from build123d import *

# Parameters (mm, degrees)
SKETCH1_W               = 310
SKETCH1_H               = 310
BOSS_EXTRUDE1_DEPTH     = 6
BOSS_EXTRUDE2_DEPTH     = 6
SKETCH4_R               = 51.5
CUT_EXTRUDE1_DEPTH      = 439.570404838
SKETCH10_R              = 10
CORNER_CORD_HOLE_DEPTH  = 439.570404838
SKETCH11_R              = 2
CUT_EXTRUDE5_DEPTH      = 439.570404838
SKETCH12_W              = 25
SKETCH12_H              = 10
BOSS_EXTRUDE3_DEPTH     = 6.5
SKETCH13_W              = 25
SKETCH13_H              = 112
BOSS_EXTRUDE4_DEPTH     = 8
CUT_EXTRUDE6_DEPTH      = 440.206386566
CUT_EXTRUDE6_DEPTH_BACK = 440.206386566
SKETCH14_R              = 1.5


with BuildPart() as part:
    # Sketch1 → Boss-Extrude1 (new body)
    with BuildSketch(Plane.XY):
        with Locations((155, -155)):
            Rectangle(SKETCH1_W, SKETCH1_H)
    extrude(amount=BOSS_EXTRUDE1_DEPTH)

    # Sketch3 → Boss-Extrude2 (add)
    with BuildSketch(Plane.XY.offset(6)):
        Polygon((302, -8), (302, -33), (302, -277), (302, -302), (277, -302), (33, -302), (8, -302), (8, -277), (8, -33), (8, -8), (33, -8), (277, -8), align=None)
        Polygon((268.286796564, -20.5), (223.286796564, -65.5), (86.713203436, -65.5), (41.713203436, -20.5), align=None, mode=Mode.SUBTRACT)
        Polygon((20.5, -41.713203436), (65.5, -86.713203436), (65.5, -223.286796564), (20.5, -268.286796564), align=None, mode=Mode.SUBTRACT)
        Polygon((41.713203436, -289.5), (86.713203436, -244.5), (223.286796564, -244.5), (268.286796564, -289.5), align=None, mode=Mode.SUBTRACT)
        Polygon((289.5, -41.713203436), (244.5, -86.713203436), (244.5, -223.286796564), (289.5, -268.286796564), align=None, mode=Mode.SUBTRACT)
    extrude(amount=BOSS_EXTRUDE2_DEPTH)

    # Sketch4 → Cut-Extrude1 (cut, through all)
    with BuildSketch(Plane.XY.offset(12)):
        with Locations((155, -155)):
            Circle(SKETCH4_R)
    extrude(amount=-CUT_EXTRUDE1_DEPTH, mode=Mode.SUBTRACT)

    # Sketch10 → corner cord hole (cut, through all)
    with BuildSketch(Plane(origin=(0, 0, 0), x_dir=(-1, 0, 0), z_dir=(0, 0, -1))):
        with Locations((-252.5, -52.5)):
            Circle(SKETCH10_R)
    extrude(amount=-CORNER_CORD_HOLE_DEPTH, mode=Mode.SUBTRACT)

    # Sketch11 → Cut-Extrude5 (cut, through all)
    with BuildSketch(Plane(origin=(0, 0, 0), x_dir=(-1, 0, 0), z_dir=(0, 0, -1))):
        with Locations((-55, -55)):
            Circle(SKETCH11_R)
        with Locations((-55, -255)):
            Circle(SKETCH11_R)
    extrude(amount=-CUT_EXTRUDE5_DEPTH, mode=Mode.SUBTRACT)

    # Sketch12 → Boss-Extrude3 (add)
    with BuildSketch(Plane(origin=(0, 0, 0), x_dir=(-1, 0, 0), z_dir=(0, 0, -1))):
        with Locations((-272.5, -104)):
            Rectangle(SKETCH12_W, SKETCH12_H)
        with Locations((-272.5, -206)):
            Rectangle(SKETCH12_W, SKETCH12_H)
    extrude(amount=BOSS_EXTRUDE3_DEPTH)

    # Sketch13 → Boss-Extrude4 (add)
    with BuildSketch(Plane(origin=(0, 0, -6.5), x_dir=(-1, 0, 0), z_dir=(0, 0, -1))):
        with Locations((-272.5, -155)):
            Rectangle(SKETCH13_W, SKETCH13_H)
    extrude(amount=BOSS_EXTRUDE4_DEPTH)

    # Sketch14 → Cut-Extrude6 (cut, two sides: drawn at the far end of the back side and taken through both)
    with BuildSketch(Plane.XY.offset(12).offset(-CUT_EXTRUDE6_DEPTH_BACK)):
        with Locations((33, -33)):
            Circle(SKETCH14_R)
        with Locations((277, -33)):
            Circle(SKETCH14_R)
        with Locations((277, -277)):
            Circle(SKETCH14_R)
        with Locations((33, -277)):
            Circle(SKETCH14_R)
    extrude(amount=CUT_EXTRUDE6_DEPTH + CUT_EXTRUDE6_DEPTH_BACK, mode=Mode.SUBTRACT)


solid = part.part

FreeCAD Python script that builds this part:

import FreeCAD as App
import Part
import Sketcher


def add_polygon(sketch, points):
    """Adds a closed chain of lines whose ends are joined by coincident constraints."""
    first, n = sketch.GeometryCount, len(points)
    for a, b in zip(points, points[1:] + points[:1]):
        sketch.addGeometry(Part.LineSegment(App.Vector(*a, 0), App.Vector(*b, 0)), False)
    for i in range(n):
        sketch.addConstraint(Sketcher.Constraint("Coincident", first + i, 2, first + (i + 1) % n, 1))

doc = App.newDocument("Part")
body = doc.addObject("PartDesign::Body", "Body")

# Sketch on XY plane
sketch1 = doc.addObject("Sketcher::SketchObject", "Sketch")
body.addObject(sketch1)
sketch1.AttachmentSupport = (doc.XY_Plane, [""])
sketch1.MapMode = "FlatFace"
add_polygon(sketch1, [(0, 0), (0, -310), (310, -310), (310, 0)])  # lines 0-3
sketch1.addConstraint(Sketcher.Constraint("Vertical", 0))
sketch1.addConstraint(Sketcher.Constraint("Horizontal", 1))
sketch1.addConstraint(Sketcher.Constraint("Vertical", 2))
sketch1.addConstraint(Sketcher.Constraint("Horizontal", 3))
sketch1.addConstraint(Sketcher.Constraint("Coincident", 3, 2, -1, 1))
sketch1.addConstraint(Sketcher.Constraint("Equal", 3, 0))
sketch1.addConstraint(Sketcher.Constraint("DistanceX", 1, 1, 1, 2, 310.0))
pad1 = doc.addObject("PartDesign::Pad", "Pad")
body.addObject(pad1)
pad1.Profile = sketch1
pad1.Length = 6

# Sketch on XY plane
sketch2 = doc.addObject("Sketcher::SketchObject", "Sketch001")
body.addObject(sketch2)
sketch2.AttachmentSupport = (doc.XY_Plane, [""])
sketch2.MapMode = "FlatFace"
sketch2.AttachmentOffset = App.Placement(App.Vector(0, 0, 6), App.Rotation())
add_polygon(sketch2, [(302, -302), (302, -8), (8, -8), (8, -302)])  # lines 0-3
add_polygon(sketch2, [(41.713203, -289.5), (86.713203, -244.5), (223.286797, -244.5), (268.286797, -289.5)])  # lines 4-7
add_polygon(sketch2, [(289.5, -41.713203), (289.5, -268.286797), (244.5, -223.286797), (244.5, -86.713203)])  # lines 8-11
add_polygon(sketch2, [(20.5, -41.713203), (65.5, -86.713203), (65.5, -223.286797), (20.5, -268.286797)])  # lines 12-15
add_polygon(sketch2, [(268.286797, -20.5), (223.286797, -65.5), (86.713203, -65.5), (41.713203, -20.5)])  # lines 16-19
sketch2.addConstraint(Sketcher.Constraint("Vertical", 0))
sketch2.addConstraint(Sketcher.Constraint("Horizontal", 1))
sketch2.addConstraint(Sketcher.Constraint("Vertical", 2))
sketch2.addConstraint(Sketcher.Constraint("Horizontal", 3))
sketch2.addConstraint(Sketcher.Constraint("Horizontal", 5))
sketch2.addConstraint(Sketcher.Constraint("Horizontal", 7))
sketch2.addConstraint(Sketcher.Constraint("Vertical", 8))
sketch2.addConstraint(Sketcher.Constraint("Vertical", 10))
sketch2.addConstraint(Sketcher.Constraint("Vertical", 13))
sketch2.addConstraint(Sketcher.Constraint("Vertical", 15))
sketch2.addConstraint(Sketcher.Constraint("Horizontal", 17))
sketch2.addConstraint(Sketcher.Constraint("Horizontal", 19))
sketch2.addConstraint(Sketcher.Constraint("Perpendicular", 4, 6))
sketch2.addConstraint(Sketcher.Constraint("Parallel", 6, 9))
sketch2.addConstraint(Sketcher.Constraint("Perpendicular", 9, 11))
sketch2.addConstraint(Sketcher.Constraint("Perpendicular", 11, 12))
sketch2.addConstraint(Sketcher.Constraint("Perpendicular", 12, 14))
sketch2.addConstraint(Sketcher.Constraint("Parallel", 14, 16))
sketch2.addConstraint(Sketcher.Constraint("Perpendicular", 16, 18))
sketch2.addConstraint(Sketcher.Constraint("Horizontal", 10, 2, 12, 2))
sketch2.addConstraint(Sketcher.Constraint("Horizontal", 9, 2, 13, 2))
sketch2.addConstraint(Sketcher.Constraint("Horizontal", 8, 2, 14, 2))
sketch2.addConstraint(Sketcher.Constraint("Horizontal", 11, 2, 15, 2))
sketch2.addConstraint(Sketcher.Constraint("Vertical", 5, 2, 16, 2))
sketch2.addConstraint(Sketcher.Constraint("Vertical", 4, 2, 17, 2))
sketch2.addConstraint(Sketcher.Constraint("Vertical", 7, 2, 18, 2))
sketch2.addConstraint(Sketcher.Constraint("Equal", 3, 0))
sketch2.addConstraint(Sketcher.Constraint("Equal", 19, 8))
sketch2.addConstraint(Sketcher.Constraint("Equal", 17, 10))
sketch2.addConstraint(Sketcher.Constraint("DistanceX", 1, 2, 1, 1, 294.0))
sketch2.addConstraint(Sketcher.Constraint("DistanceX", -1, 1, 0, 2, 302.0))
sketch2.addConstraint(Sketcher.Constraint("DistanceY", 0, 2, -1, 1, 8.0))
sketch2.addConstraint(Sketcher.Constraint("DistanceX", 5, 2, 6, 2, 45.0))
sketch2.addConstraint(Sketcher.Constraint("DistanceX", 12, 2, 10, 2, 179.0))
sketch2.addConstraint(Sketcher.Constraint("DistanceY", 4, 2, -1, 1, 244.5))
sketch2.addConstraint(Sketcher.Constraint("DistanceX", -1, 1, 8, 2, 289.5))
sketch2.addConstraint(Sketcher.Constraint("DistanceY", 16, 2, -1, 1, 65.5))
sketch2.addConstraint(Sketcher.Constraint("DistanceX", 5, 1, 5, 2, 136.573593))
sketch2.addConstraint(Sketcher.Constraint("DistanceX", -1, 1, 4, 2, 86.713203))
sketch2.addConstraint(Sketcher.Constraint("DistanceY", 8, 2, -1, 1, 268.286797))
pad2 = doc.addObject("PartDesign::Pad", "Pad001")
body.addObject(pad2)
pad2.Profile = sketch2
pad2.Length = 6

# Sketch on XY plane
sketch3 = doc.addObject("Sketcher::SketchObject", "Sketch002")
body.addObject(sketch3)
sketch3.AttachmentSupport = (doc.XY_Plane, [""])
sketch3.MapMode = "FlatFace"
sketch3.AttachmentOffset = App.Placement(App.Vector(0, 0, 12), App.Rotation())
sketch3.addGeometry(Part.Circle(App.Vector(155, -155, 0), App.Vector(0, 0, 1), 51.5), False)
sketch3.addConstraint(Sketcher.Constraint("Diameter", 0, 103.0))
sketch3.addConstraint(Sketcher.Constraint("DistanceX", -1, 1, 0, 3, 155.0))
sketch3.addConstraint(Sketcher.Constraint("DistanceY", 0, 3, -1, 1, 155.0))
pocket1 = doc.addObject("PartDesign::Pocket", "Pocket")
body.addObject(pocket1)
pocket1.Profile = sketch3
pocket1.Type = "ThroughAll"

# Sketch on XY plane
sketch4 = doc.addObject("Sketcher::SketchObject", "Sketch003")
body.addObject(sketch4)
sketch4.AttachmentSupport = (doc.XY_Plane, [""])
sketch4.MapMode = "FlatFace"
sketch4.addGeometry(Part.Circle(App.Vector(252.5, -52.5, 0), App.Vector(0, 0, 1), 10), False)
sketch4.addConstraint(Sketcher.Constraint("Diameter", 0, 20.0))
sketch4.addConstraint(Sketcher.Constraint("DistanceX", -1, 1, 0, 3, 252.5))
sketch4.addConstraint(Sketcher.Constraint("DistanceY", 0, 3, -1, 1, 52.5))
pocket2 = doc.addObject("PartDesign::Pocket", "Pocket001")
body.addObject(pocket2)
pocket2.Profile = sketch4
pocket2.Type = "ThroughAll"
pocket2.Reversed = True

# Sketch on XY plane
sketch5 = doc.addObject("Sketcher::SketchObject", "Sketch004")
body.addObject(sketch5)
sketch5.AttachmentSupport = (doc.XY_Plane, [""])
sketch5.MapMode = "FlatFace"
sketch5.addGeometry(Part.Circle(App.Vector(55, -55, 0), App.Vector(0, 0, 1), 2), False)
sketch5.addGeometry(Part.Circle(App.Vector(55, -255, 0), App.Vector(0, 0, 1), 2), False)
sketch5.addConstraint(Sketcher.Constraint("Equal", 0, 1))
sketch5.addConstraint(Sketcher.Constraint("Vertical", 0, 3, 1, 3))
sketch5.addConstraint(Sketcher.Constraint("Diameter", 0, 4.0))
sketch5.addConstraint(Sketcher.Constraint("DistanceX", -1, 1, 0, 3, 55.0))
sketch5.addConstraint(Sketcher.Constraint("DistanceY", 0, 3, -1, 1, 55.0))
sketch5.addConstraint(Sketcher.Constraint("DistanceY", 1, 3, -1, 1, 255.0))
pocket3 = doc.addObject("PartDesign::Pocket", "Pocket002")
body.addObject(pocket3)
pocket3.Profile = sketch5
pocket3.Type = "ThroughAll"
pocket3.Reversed = True

# Sketch on XY plane
sketch6 = doc.addObject("Sketcher::SketchObject", "Sketch005")
body.addObject(sketch6)
sketch6.AttachmentSupport = (doc.XY_Plane, [""])
sketch6.MapMode = "FlatFace"
add_polygon(sketch6, [(285, -99), (285, -109), (260, -109), (260, -99)])  # lines 0-3
add_polygon(sketch6, [(285, -201), (285, -211), (260, -211), (260, -201)])  # lines 4-7
sketch6.addConstraint(Sketcher.Constraint("Vertical", 0))
sketch6.addConstraint(Sketcher.Constraint("Horizontal", 1))
sketch6.addConstraint(Sketcher.Constraint("Vertical", 2))
sketch6.addConstraint(Sketcher.Constraint("Horizontal", 3))
sketch6.addConstraint(Sketcher.Constraint("Vertical", 4))
sketch6.addConstraint(Sketcher.Constraint("Horizontal", 5))
sketch6.addConstraint(Sketcher.Constraint("Vertical", 6))
sketch6.addConstraint(Sketcher.Constraint("Horizontal", 7))
sketch6.addConstraint(Sketcher.Constraint("Vertical", 3, 2, 4, 2))
sketch6.addConstraint(Sketcher.Constraint("Vertical", 2, 2, 5, 2))
sketch6.addConstraint(Sketcher.Constraint("Equal", 2, 4))
sketch6.addConstraint(Sketcher.Constraint("DistanceX", 1, 2, 1, 1, 25.0))
sketch6.addConstraint(Sketcher.Constraint("DistanceY", 0, 2, 0, 1, 10.0))
sketch6.addConstraint(Sketcher.Constraint("DistanceX", -1, 1, 0, 2, 285.0))
sketch6.addConstraint(Sketcher.Constraint("DistanceY", 0, 2, -1, 1, 109.0))
sketch6.addConstraint(Sketcher.Constraint("DistanceY", 4, 2, -1, 1, 211.0))
pad3 = doc.addObject("PartDesign::Pad", "Pad002")
body.addObject(pad3)
pad3.Profile = sketch6
pad3.Length = 6.5
pad3.Reversed = True

# Sketch on XY plane
sketch7 = doc.addObject("Sketcher::SketchObject", "Sketch006")
body.addObject(sketch7)
sketch7.AttachmentSupport = (doc.XY_Plane, [""])
sketch7.MapMode = "FlatFace"
sketch7.AttachmentOffset = App.Placement(App.Vector(0, 0, -6.5), App.Rotation())
add_polygon(sketch7, [(285, -99), (285, -211), (260, -211), (260, -99)])  # lines 0-3
sketch7.addConstraint(Sketcher.Constraint("Vertical", 0))
sketch7.addConstraint(Sketcher.Constraint("Horizontal", 1))
sketch7.addConstraint(Sketcher.Constraint("Vertical", 2))
sketch7.addConstraint(Sketcher.Constraint("Horizontal", 3))
sketch7.addConstraint(Sketcher.Constraint("DistanceX", 1, 2, 1, 1, 25.0))
sketch7.addConstraint(Sketcher.Constraint("DistanceY", 0, 2, 0, 1, 112.0))
sketch7.addConstraint(Sketcher.Constraint("DistanceX", -1, 1, 0, 2, 285.0))
sketch7.addConstraint(Sketcher.Constraint("DistanceY", 0, 2, -1, 1, 211.0))
pad4 = doc.addObject("PartDesign::Pad", "Pad003")
body.addObject(pad4)
pad4.Profile = sketch7
pad4.Length = 8
pad4.Reversed = True

# Sketch on XY plane
sketch8 = doc.addObject("Sketcher::SketchObject", "Sketch007")
body.addObject(sketch8)
sketch8.AttachmentSupport = (doc.XY_Plane, [""])
sketch8.MapMode = "FlatFace"
sketch8.AttachmentOffset = App.Placement(App.Vector(0, 0, 12), App.Rotation())
sketch8.addGeometry(Part.Circle(App.Vector(33, -33, 0), App.Vector(0, 0, 1), 1.5), False)
sketch8.addGeometry(Part.Circle(App.Vector(277, -33, 0), App.Vector(0, 0, 1), 1.5), False)
sketch8.addGeometry(Part.Circle(App.Vector(277, -277, 0), App.Vector(0, 0, 1), 1.5), False)
sketch8.addGeometry(Part.Circle(App.Vector(33, -277, 0), App.Vector(0, 0, 1), 1.5), False)
sketch8.addConstraint(Sketcher.Constraint("Equal", 0, 1))
sketch8.addConstraint(Sketcher.Constraint("Equal", 1, 2))
sketch8.addConstraint(Sketcher.Constraint("Equal", 2, 3))
sketch8.addConstraint(Sketcher.Constraint("Horizontal", 0, 3, 1, 3))
sketch8.addConstraint(Sketcher.Constraint("Horizontal", 2, 3, 3, 3))
sketch8.addConstraint(Sketcher.Constraint("Vertical", 1, 3, 2, 3))
sketch8.addConstraint(Sketcher.Constraint("Vertical", 0, 3, 3, 3))
sketch8.addConstraint(Sketcher.Constraint("Diameter", 0, 3.0))
sketch8.addConstraint(Sketcher.Constraint("DistanceX", -1, 1, 0, 3, 33.0))
sketch8.addConstraint(Sketcher.Constraint("DistanceY", 0, 3, -1, 1, 33.0))
sketch8.addConstraint(Sketcher.Constraint("DistanceX", -1, 1, 1, 3, 277.0))
sketch8.addConstraint(Sketcher.Constraint("DistanceY", 2, 3, -1, 1, 277.0))
pocket4 = doc.addObject("PartDesign::Pocket", "Pocket003")
body.addObject(pocket4)
pocket4.Profile = sketch8
pocket4.Type = "ThroughAll"
pocket4.Midplane = True

doc.recompute()
